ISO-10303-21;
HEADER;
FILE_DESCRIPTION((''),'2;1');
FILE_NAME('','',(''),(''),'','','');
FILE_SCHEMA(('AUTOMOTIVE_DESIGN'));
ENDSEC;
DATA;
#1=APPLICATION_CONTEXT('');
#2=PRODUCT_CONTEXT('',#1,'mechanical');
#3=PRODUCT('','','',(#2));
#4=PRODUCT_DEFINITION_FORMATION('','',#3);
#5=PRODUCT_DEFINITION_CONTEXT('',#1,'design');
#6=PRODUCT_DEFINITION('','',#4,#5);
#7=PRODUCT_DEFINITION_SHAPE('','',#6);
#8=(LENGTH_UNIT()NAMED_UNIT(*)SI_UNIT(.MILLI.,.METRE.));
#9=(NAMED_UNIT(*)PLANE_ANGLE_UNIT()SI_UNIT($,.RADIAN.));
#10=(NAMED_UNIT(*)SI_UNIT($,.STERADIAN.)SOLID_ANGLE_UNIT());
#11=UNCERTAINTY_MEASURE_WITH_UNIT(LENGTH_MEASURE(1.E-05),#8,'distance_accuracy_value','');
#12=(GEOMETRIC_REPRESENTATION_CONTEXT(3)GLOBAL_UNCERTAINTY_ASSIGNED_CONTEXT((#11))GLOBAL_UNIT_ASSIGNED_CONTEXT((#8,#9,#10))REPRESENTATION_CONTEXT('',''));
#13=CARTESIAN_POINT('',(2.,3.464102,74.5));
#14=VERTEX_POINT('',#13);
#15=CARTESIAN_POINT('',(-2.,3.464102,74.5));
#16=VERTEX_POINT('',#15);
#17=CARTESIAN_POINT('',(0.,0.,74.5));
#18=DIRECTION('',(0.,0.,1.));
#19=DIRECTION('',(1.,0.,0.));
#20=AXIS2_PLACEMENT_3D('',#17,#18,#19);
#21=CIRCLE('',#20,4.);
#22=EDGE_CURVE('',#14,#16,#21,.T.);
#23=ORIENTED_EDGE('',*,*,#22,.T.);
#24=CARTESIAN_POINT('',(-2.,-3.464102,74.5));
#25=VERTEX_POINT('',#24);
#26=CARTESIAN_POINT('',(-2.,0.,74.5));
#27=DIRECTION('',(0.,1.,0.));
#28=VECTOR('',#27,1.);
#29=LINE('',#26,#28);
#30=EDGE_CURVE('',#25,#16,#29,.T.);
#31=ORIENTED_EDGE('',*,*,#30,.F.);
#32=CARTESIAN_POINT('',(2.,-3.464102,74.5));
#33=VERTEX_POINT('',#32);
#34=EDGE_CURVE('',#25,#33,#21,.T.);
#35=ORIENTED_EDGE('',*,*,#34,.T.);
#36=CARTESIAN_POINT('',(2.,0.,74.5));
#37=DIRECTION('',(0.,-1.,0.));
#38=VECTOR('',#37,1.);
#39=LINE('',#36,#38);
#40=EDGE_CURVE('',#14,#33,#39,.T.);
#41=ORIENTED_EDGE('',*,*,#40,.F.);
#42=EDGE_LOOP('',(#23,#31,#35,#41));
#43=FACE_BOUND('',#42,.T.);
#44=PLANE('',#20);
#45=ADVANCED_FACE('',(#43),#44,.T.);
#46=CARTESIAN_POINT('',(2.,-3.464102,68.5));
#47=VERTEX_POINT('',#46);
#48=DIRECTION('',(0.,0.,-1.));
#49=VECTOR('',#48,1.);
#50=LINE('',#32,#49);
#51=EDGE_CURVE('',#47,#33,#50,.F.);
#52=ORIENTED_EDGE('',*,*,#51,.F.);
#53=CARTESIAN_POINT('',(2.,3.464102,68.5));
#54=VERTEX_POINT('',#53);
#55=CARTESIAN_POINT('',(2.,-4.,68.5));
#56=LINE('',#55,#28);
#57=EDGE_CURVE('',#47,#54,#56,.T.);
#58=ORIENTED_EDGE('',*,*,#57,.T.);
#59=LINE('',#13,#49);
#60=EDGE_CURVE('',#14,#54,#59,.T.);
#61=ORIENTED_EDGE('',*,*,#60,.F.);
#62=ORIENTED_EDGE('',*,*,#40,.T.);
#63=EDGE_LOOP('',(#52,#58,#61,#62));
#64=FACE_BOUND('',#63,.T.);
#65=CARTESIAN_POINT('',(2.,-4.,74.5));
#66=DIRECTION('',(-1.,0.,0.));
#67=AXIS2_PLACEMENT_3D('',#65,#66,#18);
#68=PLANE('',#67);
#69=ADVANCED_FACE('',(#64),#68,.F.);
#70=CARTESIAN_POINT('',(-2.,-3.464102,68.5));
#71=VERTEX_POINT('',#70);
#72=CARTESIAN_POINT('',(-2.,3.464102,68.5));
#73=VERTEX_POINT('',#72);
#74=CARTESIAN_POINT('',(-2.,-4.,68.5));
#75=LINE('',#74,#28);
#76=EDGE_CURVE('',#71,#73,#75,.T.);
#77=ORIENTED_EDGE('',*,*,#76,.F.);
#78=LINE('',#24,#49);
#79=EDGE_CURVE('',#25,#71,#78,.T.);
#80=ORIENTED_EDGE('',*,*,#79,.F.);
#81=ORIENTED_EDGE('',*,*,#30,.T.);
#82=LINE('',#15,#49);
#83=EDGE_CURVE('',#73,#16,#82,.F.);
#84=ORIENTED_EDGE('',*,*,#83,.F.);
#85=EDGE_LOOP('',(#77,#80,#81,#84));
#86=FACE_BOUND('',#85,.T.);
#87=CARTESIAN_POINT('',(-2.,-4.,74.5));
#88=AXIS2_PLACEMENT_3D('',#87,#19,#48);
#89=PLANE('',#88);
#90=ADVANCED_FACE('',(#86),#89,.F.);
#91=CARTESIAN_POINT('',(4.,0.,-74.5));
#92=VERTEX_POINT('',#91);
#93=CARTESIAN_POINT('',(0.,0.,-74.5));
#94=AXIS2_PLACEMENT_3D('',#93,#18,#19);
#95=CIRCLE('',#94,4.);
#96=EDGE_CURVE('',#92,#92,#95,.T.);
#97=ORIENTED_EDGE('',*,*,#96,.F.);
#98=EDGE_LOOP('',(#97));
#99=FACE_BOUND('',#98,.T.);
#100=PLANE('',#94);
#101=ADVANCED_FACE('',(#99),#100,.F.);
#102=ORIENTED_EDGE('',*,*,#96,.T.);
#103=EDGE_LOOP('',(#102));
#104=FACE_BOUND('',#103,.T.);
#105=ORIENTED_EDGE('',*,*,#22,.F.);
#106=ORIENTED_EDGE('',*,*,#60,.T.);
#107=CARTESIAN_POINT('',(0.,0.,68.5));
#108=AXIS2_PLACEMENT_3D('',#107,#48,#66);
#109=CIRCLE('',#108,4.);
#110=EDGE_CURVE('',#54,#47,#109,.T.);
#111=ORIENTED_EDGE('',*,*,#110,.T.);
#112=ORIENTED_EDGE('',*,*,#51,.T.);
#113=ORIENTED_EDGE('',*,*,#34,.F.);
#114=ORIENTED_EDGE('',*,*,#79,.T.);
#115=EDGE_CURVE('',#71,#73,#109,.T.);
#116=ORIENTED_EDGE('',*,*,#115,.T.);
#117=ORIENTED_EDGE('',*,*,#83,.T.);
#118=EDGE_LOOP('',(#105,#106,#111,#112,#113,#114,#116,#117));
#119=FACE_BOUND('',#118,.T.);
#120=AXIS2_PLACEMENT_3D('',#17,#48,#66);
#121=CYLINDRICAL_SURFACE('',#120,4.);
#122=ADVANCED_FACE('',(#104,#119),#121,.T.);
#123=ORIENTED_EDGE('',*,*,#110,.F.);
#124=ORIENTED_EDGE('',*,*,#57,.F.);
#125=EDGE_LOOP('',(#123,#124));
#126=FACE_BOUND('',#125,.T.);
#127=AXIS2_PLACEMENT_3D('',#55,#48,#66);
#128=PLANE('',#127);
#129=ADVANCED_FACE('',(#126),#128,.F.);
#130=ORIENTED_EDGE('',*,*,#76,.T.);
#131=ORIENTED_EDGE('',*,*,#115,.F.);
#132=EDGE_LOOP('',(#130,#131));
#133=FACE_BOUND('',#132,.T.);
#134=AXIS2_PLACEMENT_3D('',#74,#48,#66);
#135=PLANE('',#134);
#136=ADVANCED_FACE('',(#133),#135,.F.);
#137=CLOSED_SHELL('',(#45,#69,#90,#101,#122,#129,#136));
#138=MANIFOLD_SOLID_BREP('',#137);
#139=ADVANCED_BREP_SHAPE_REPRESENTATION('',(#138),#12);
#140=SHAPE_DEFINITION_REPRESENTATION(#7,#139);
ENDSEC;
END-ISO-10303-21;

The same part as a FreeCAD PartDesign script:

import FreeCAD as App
import Part
import Sketcher

V = App.Vector

doc = App.newDocument("Part")
body = doc.addObject("PartDesign::Body", "Body")

sketch1 = doc.addObject("Sketcher::SketchObject", "Sketch")
body.addObject(sketch1)
sketch1.AttachmentSupport = (doc.XY_Plane, [""])
sketch1.MapMode = "FlatFace"
sketch1.addGeometry(Part.Circle(V(0, 0, 0), V(0, 0, 1), 4), False)
sketch1.addConstraint(Sketcher.Constraint("Coincident", 0, 3, -1, 1))
sketch1.addConstraint(Sketcher.Constraint("Diameter", 0, 8.0))
pad1 = doc.addObject("PartDesign::Pad", "Pad")
body.addObject(pad1)
pad1.Profile = sketch1
pad1.Length = 149
pad1.Midplane = True

sketch2 = doc.addObject("Sketcher::SketchObject", "Sketch001")
body.addObject(sketch2)
sketch2.AttachmentSupport = (doc.XZ_Plane, [""])
sketch2.MapMode = "FlatFace"
sketch2.addGeometry(Part.LineSegment(V(-4, 68.5, 0), V(-4, 74.5, 0)), False)
sketch2.addGeometry(Part.LineSegment(V(-4, 74.5, 0), V(-2, 74.5, 0)), False)
sketch2.addGeometry(Part.LineSegment(V(-2, 74.5, 0), V(-2, 68.5, 0)), False)
sketch2.addGeometry(Part.LineSegment(V(-2, 68.5, 0), V(-4, 68.5, 0)), False)
sketch2.addGeometry(Part.LineSegment(V(2, 68.5, 0), V(2, 74.5, 0)), False)
sketch2.addGeometry(Part.LineSegment(V(2, 74.5, 0), V(4, 74.5, 0)), False)
sketch2.addGeometry(Part.LineSegment(V(4, 74.5, 0), V(4, 68.5, 0)), False)
sketch2.addGeometry(Part.LineSegment(V(4, 68.5, 0), V(2, 68.5, 0)), False)
sketch2.addConstraint(Sketcher.Constraint("Coincident", 0, 2, 1, 1))
sketch2.addConstraint(Sketcher.Constraint("Coincident", 1, 2, 2, 1))
sketch2.addConstraint(Sketcher.Constraint("Coincident", 2, 2, 3, 1))
sketch2.addConstraint(Sketcher.Constraint("Coincident", 3, 2, 0, 1))
sketch2.addConstraint(Sketcher.Constraint("Coincident", 4, 2, 5, 1))
sketch2.addConstraint(Sketcher.Constraint("Coincident", 5, 2, 6, 1))
sketch2.addConstraint(Sketcher.Constraint("Coincident", 6, 2, 7, 1))
sketch2.addConstraint(Sketcher.Constraint("Coincident", 7, 2, 4, 1))
sketch2.addConstraint(Sketcher.Constraint("Vertical", 0))
sketch2.addConstraint(Sketcher.Constraint("Horizontal", 1))
sketch2.addConstraint(Sketcher.Constraint("Vertical", 2))
sketch2.addConstraint(Sketcher.Constraint("Horizontal", 3))
sketch2.addConstraint(Sketcher.Constraint("Vertical", 4))
sketch2.addConstraint(Sketcher.Constraint("Horizontal", 5))
sketch2.addConstraint(Sketcher.Constraint("Vertical", 6))
sketch2.addConstraint(Sketcher.Constraint("Horizontal", 7))
sketch2.addConstraint(Sketcher.Constraint("Symmetric", 1, 2, 4, 2, -2))
sketch2.addConstraint(Sketcher.Constraint("Symmetric", 3, 2, 6, 2, -2))
sketch2.addConstraint(Sketcher.Constraint("DistanceX", 1, 1, 1, 2, 2.0))
sketch2.addConstraint(Sketcher.Constraint("DistanceY", 0, 1, 0, 2, 6.0))
sketch2.addConstraint(Sketcher.Constraint("DistanceX", 0, 2, -1, 1, 4.0))
sketch2.addConstraint(Sketcher.Constraint("DistanceY", -1, 1, 0, 2, 74.5))
pocket1 = doc.addObject("PartDesign::Pocket", "Pocket")
body.addObject(pocket1)
pocket1.Profile = sketch2
pocket1.Type = "ThroughAll"
pocket1.Midplane = True

doc.recompute()
